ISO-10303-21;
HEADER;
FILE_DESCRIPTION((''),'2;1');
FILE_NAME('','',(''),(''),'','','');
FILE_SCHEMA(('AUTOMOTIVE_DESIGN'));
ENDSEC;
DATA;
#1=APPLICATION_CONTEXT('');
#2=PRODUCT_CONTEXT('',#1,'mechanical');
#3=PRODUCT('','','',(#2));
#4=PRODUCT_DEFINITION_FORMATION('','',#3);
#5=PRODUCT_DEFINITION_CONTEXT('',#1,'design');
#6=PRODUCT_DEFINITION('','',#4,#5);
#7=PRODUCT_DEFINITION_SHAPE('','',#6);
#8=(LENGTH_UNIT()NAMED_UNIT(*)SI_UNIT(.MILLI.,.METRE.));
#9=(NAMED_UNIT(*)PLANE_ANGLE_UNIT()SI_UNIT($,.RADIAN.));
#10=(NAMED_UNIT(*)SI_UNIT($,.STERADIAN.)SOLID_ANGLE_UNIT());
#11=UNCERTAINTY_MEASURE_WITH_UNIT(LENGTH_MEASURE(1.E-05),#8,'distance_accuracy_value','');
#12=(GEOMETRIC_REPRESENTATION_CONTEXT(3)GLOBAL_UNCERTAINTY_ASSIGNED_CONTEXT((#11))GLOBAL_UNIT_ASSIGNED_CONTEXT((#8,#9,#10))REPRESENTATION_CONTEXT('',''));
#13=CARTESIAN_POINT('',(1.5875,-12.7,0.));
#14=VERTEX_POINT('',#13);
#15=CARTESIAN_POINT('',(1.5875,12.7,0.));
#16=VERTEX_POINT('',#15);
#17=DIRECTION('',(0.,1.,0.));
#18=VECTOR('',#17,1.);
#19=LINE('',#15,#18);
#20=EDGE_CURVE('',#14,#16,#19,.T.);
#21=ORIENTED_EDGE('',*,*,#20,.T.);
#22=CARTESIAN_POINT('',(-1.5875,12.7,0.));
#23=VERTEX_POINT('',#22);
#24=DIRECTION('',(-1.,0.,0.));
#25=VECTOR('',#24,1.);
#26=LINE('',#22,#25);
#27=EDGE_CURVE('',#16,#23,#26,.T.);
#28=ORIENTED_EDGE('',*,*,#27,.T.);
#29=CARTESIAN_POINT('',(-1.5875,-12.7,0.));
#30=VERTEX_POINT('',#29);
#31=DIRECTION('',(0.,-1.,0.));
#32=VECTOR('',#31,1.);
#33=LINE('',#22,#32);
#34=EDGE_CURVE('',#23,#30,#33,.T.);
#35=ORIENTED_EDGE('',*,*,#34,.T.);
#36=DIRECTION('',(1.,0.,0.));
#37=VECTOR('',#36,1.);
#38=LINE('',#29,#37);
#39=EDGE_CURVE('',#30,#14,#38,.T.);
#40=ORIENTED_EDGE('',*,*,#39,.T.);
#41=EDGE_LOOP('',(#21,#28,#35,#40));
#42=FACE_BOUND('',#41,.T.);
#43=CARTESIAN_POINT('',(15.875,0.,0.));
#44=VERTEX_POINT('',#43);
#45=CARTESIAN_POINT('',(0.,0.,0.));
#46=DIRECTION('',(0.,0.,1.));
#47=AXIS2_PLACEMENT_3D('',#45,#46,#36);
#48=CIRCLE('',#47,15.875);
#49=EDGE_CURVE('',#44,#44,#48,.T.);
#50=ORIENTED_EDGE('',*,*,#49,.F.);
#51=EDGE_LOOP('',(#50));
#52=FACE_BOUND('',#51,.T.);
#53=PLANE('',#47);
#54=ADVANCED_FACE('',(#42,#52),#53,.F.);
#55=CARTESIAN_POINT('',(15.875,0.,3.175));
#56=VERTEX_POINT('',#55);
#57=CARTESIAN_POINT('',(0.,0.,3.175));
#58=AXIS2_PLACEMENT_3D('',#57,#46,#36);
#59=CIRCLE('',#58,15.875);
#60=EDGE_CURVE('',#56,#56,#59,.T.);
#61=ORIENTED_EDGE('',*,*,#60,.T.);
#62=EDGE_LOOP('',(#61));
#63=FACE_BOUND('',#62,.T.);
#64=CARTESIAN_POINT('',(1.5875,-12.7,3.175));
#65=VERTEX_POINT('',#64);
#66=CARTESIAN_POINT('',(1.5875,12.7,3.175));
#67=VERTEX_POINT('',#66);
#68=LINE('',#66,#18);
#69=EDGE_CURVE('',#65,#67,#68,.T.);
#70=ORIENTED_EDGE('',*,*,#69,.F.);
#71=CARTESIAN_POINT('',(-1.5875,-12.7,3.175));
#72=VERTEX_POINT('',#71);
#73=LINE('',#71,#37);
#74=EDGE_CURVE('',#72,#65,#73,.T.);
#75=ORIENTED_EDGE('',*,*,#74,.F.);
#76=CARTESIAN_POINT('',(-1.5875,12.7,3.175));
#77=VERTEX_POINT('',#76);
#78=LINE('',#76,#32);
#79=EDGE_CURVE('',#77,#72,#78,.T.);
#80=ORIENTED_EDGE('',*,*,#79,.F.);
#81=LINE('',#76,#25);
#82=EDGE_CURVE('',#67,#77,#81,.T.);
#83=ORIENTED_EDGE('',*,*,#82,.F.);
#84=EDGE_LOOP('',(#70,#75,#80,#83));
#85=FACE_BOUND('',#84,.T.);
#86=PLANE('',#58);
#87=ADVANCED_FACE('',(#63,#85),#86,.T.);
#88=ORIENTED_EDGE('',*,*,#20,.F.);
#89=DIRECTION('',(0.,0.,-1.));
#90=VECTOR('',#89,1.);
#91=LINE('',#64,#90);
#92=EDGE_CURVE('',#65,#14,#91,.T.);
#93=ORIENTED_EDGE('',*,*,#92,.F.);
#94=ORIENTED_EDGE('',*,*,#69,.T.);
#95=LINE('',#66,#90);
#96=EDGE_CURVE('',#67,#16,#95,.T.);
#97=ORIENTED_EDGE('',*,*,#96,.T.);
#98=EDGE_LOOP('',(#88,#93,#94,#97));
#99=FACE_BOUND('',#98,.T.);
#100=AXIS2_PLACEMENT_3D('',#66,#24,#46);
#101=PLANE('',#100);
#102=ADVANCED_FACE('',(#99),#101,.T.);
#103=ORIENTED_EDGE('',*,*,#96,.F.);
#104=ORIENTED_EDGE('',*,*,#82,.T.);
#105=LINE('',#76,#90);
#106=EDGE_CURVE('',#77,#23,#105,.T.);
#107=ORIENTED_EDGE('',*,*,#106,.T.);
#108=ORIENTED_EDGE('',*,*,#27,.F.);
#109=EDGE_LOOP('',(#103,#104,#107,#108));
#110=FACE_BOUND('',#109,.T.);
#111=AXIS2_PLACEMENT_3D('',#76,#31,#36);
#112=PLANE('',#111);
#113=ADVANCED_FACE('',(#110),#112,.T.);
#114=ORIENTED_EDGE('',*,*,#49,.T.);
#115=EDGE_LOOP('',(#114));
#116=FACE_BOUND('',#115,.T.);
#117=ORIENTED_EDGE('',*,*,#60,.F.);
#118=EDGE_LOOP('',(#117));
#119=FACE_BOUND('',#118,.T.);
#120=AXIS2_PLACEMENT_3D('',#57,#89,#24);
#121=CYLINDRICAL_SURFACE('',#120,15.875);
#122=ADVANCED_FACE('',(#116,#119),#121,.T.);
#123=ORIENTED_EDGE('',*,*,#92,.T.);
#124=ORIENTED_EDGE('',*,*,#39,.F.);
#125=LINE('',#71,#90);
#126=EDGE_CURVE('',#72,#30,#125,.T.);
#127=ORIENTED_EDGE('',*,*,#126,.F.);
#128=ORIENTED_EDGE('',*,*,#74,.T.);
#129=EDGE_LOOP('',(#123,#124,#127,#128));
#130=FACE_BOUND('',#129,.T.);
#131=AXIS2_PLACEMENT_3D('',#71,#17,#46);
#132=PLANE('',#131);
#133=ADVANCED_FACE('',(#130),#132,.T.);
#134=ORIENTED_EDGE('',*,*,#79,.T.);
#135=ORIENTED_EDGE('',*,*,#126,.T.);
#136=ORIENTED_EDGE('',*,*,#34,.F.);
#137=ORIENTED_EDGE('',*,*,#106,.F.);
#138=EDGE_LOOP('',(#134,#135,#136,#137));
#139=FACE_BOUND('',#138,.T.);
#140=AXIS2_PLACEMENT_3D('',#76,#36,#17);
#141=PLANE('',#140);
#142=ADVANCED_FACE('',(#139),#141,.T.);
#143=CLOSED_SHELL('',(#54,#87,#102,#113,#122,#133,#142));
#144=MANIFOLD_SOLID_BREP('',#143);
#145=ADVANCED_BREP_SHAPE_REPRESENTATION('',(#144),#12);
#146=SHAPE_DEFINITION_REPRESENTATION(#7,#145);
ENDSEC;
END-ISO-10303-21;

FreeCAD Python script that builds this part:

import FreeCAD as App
import Part
import Sketcher

V = App.Vector
Q = App.Units.Quantity

doc = App.newDocument("Part")
body = doc.addObject("PartDesign::Body", "Body")

# Sketch on XY plane
sketch1 = body.newObject("Sketcher::SketchObject", "Sketch")
sketch1.AttachmentSupport = (doc.getObject("XY_Plane"), [""])
sketch1.MapMode = "FlatFace"
sketch1.addGeometry([
    Part.Circle(V(0, 0, 0), V(0, 0, 1), 15.9),  # 0
    Part.LineSegment(V(1.6, -12.7, 0), V(-1.6, -12.7, 0)),  # 1
    Part.LineSegment(V(-1.6, -12.7, 0), V(-1.6, 12.7, 0)),  # 2
    Part.LineSegment(V(-1.6, 12.7, 0), V(1.6, 12.7, 0)),  # 3
    Part.LineSegment(V(1.6, 12.7, 0), V(1.6, -12.7, 0)),  # 4
], False)
sketch1.addConstraint([
    Sketcher.Constraint("Coincident", 1, 2, 2, 1),
    Sketcher.Constraint("Coincident", 2, 2, 3, 1),
    Sketcher.Constraint("Coincident", 3, 2, 4, 1),
    Sketcher.Constraint("Coincident", 4, 2, 1, 1),
    Sketcher.Constraint("Horizontal", 1),
    Sketcher.Constraint("Vertical", 2),
    Sketcher.Constraint("Horizontal", 3),
    Sketcher.Constraint("Vertical", 4),
    Sketcher.Constraint("Coincident", 0, 3, -1, 1),
    Sketcher.Constraint("Symmetric", 1, 2, 3, 2, -1, 1),
    Sketcher.Constraint("Diameter", 0, Q("1.25 in")),
    Sketcher.Constraint("DistanceY", 2, 1, 2, 2, Q("1 in")),
    Sketcher.Constraint("DistanceX", 1, 2, 1, 1, Q("0.125 in")),
])
pad1 = body.newObject("PartDesign::Pad", "Pad")
pad1.Profile = sketch1
pad1.Length = Q("0.125 in")

doc.recompute()
